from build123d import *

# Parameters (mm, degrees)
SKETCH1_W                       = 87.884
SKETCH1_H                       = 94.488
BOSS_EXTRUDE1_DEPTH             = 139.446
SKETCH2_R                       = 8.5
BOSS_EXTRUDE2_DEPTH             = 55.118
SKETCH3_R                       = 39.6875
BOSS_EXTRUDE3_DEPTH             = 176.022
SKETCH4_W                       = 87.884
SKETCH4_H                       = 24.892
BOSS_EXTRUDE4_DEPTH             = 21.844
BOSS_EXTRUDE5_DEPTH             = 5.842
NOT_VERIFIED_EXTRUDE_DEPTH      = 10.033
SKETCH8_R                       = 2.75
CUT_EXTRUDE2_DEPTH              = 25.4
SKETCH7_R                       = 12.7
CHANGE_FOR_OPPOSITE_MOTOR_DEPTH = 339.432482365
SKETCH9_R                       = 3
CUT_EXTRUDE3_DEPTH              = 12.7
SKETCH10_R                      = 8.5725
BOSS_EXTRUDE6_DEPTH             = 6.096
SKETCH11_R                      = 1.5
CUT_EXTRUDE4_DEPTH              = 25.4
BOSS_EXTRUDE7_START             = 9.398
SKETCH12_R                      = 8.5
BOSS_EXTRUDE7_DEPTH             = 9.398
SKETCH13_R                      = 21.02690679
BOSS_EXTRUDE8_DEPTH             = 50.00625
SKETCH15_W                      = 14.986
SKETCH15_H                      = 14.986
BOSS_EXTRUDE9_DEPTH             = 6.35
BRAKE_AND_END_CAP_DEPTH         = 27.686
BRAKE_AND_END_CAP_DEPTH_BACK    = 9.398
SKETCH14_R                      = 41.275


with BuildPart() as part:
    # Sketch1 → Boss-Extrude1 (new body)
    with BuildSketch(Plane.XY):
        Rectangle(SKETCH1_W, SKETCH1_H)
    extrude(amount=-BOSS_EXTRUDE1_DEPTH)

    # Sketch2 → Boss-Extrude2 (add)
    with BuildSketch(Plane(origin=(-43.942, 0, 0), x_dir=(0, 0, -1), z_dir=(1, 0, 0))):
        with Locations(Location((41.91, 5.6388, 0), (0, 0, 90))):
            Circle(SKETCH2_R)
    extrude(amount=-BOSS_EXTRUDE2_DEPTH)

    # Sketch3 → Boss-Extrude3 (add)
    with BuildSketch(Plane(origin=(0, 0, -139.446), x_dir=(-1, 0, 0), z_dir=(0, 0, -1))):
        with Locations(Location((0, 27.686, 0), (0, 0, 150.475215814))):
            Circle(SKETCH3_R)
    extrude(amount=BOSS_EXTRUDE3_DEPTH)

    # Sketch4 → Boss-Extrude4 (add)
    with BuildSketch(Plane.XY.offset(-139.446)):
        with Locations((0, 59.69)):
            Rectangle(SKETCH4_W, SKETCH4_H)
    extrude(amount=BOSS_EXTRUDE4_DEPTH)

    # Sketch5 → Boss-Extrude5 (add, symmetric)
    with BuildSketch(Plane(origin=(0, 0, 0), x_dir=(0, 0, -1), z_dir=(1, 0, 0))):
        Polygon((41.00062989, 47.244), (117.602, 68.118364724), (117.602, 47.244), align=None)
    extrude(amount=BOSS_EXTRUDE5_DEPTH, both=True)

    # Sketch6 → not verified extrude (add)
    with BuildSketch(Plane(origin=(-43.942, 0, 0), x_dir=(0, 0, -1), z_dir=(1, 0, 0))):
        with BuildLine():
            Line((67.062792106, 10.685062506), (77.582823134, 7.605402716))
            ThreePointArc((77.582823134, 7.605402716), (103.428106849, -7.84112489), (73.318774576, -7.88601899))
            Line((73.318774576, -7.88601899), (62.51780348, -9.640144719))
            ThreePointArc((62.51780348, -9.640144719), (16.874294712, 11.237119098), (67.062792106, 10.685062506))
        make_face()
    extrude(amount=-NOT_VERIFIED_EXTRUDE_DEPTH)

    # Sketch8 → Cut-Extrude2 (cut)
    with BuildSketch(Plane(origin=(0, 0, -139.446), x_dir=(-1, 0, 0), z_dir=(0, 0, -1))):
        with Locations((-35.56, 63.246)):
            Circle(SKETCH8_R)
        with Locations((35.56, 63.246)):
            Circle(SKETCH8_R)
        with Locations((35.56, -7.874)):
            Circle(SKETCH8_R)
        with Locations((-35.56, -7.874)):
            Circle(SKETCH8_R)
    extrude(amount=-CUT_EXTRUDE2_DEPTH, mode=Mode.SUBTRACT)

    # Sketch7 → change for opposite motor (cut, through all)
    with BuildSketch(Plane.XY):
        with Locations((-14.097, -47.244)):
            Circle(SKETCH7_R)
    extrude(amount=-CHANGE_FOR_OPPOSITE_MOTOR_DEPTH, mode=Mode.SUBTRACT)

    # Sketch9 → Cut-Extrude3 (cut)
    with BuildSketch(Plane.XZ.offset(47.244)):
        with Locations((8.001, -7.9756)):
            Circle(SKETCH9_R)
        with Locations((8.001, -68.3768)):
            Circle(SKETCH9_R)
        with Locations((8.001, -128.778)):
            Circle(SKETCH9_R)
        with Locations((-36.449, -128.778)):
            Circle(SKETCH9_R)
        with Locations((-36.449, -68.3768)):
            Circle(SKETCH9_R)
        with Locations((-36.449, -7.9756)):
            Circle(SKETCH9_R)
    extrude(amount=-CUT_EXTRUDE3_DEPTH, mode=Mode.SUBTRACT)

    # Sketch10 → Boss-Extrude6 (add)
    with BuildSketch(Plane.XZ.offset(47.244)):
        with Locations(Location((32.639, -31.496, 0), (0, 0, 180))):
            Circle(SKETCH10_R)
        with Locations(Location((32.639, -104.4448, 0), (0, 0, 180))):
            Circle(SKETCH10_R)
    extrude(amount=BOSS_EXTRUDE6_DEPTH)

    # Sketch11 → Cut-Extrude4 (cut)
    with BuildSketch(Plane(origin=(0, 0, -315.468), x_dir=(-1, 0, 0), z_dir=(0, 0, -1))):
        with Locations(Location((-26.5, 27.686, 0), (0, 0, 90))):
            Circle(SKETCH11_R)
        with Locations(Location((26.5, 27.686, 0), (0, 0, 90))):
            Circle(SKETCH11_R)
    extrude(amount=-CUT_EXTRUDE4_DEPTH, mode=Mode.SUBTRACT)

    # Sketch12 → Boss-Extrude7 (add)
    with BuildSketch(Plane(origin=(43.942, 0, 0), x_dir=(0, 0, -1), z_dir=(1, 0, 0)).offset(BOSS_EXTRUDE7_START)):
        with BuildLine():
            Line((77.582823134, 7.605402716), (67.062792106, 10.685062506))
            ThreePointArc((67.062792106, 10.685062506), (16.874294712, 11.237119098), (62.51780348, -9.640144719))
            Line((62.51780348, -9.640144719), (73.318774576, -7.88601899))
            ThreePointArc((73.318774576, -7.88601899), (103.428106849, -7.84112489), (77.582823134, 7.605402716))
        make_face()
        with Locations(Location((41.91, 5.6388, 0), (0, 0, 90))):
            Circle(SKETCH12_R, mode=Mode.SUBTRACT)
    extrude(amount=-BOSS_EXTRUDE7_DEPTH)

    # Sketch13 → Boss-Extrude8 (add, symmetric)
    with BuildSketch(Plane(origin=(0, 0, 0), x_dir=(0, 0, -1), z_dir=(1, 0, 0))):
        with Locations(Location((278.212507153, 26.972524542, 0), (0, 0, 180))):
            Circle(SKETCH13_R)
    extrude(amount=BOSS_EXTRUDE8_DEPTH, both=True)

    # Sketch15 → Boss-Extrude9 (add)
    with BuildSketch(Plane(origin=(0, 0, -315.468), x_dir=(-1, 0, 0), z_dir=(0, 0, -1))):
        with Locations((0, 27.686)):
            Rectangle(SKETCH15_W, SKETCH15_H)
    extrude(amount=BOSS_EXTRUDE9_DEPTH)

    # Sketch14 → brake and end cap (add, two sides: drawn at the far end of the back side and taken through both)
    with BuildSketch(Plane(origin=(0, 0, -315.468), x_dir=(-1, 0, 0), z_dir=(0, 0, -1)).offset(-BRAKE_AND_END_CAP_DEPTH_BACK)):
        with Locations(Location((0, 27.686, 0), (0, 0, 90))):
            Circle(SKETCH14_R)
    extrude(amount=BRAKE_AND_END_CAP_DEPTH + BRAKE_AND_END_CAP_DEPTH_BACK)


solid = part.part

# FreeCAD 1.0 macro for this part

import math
import FreeCAD as App
import Part
import Sketcher
from FreeCAD import Vector
Q = App.Units.Quantity


def add_polygon(sketch, points):
    """Adds a closed chain of lines whose ends are joined by coincident constraints."""
    first, n = sketch.GeometryCount, len(points)
    for a, b in zip(points, points[1:] + points[:1]):
        sketch.addGeometry(Part.LineSegment(App.Vector(*a, 0), App.Vector(*b, 0)), False)
    for i in range(n):
        sketch.addConstraint(Sketcher.Constraint("Coincident", first + i, 2, first + (i + 1) % n, 1))

doc = App.newDocument("Part")
body = doc.addObject("PartDesign::Body", "Body")

sketch1 = doc.addObject("Sketcher::SketchObject", "Sketch")
body.addObject(sketch1)
sketch1.AttachmentSupport = (doc.XY_Plane, [""])
sketch1.MapMode = "FlatFace"
add_polygon(sketch1, [(-44, 47), (-44, -47), (44, -47), (44, 47)])
sketch1.addConstraint(Sketcher.Constraint("Vertical", 0))
sketch1.addConstraint(Sketcher.Constraint("Horizontal", 1))
sketch1.addConstraint(Sketcher.Constraint("Vertical", 2))
sketch1.addConstraint(Sketcher.Constraint("Horizontal", 3))
sketch1.addConstraint(Sketcher.Constraint("Symmetric", 0, 2, 2, 2, -1, 1))
sketch1.addConstraint(Sketcher.Constraint("DistanceX", 1, 1, 1, 2, Q("3.46 in")))
sketch1.addConstraint(Sketcher.Constraint("DistanceY", 0, 2, 0, 1, Q("3.72 in")))
pad1 = doc.addObject("PartDesign::Pad", "Pad")
body.addObject(pad1)
pad1.Profile = sketch1
pad1.Length = Q("5.49 in")
pad1.Reversed = True

sketch2 = doc.addObject("Sketcher::SketchObject", "Sketch001")
body.addObject(sketch2)
sketch2.AttachmentSupport = (doc.YZ_Plane, [""])
sketch2.MapMode = "FlatFace"
sketch2.AttachmentOffset = App.Placement(Vector(0, 0, -1.73 * 25.4), App.Rotation())
sketch2.addGeometry(Part.Circle(Vector(6, -42, 0), Vector(0, 0, 1), 8), False)
sketch2.addConstraint(Sketcher.Constraint("Diameter", 0, 17.0))
sketch2.addConstraint(Sketcher.Constraint("DistanceY", 0, 3, -1, 1, Q("1.65 in")))
sketch2.addConstraint(Sketcher.Constraint("DistanceX", -1, 1, 0, 3, Q("0.222 in")))
pad2 = doc.addObject("PartDesign::Pad", "Pad001")
body.addObject(pad2)
pad2.Profile = sketch2
pad2.Length = Q("2.17 in")
pad2.Reversed = True

sketch3 = doc.addObject("Sketcher::SketchObject", "Sketch002")
body.addObject(sketch3)
sketch3.AttachmentSupport = (doc.XY_Plane, [""])
sketch3.MapMode = "FlatFace"
sketch3.AttachmentOffset = App.Placement(Vector(0, 0, -5.49 * 25.4), App.Rotation())
sketch3.addGeometry(Part.Circle(Vector(0, 28, 0), Vector(0, 0, 1), 40), False)
sketch3.addConstraint(Sketcher.Constraint("PointOnObject", 0, 3, -2))
sketch3.addConstraint(Sketcher.Constraint("Diameter", 0, Q("3.125 in")))
sketch3.addConstraint(Sketcher.Constraint("DistanceY", -1, 1, 0, 3, Q("1.09 in")))
pad3 = doc.addObject("PartDesign::Pad", "Pad002")
body.addObject(pad3)
pad3.Profile = sketch3
pad3.Length = Q("6.93 in")
pad3.Reversed = True

sketch4 = doc.addObject("Sketcher::SketchObject", "Sketch003")
body.addObject(sketch4)
sketch4.AttachmentSupport = (doc.XY_Plane, [""])
sketch4.MapMode = "FlatFace"
sketch4.AttachmentOffset = App.Placement(Vector(0, 0, -5.49 * 25.4), App.Rotation())
add_polygon(sketch4, [(-44, 72), (-44, 47), (44, 47), (44, 72)])
sketch4.addConstraint(Sketcher.Constraint("Vertical", 0))
sketch4.addConstraint(Sketcher.Constraint("Horizontal", 1))
sketch4.addConstraint(Sketcher.Constraint("Vertical", 2))
sketch4.addConstraint(Sketcher.Constraint("Horizontal", 3))
sketch4.addConstraint(Sketcher.Constraint("DistanceX", 1, 1, 1, 2, Q("3.46 in")))
sketch4.addConstraint(Sketcher.Constraint("DistanceY", 0, 2, 0, 1, Q("0.98 in")))
sketch4.addConstraint(Sketcher.Constraint("DistanceX", 0, 2, -1, 1, Q("1.73 in")))
sketch4.addConstraint(Sketcher.Constraint("DistanceY", -1, 1, 0, 2, Q("1.86 in")))
pad4 = doc.addObject("PartDesign::Pad", "Pad003")
body.addObject(pad4)
pad4.Profile = sketch4
pad4.Length = Q("0.86 in")

sketch5 = doc.addObject("Sketcher::SketchObject", "Sketch004")
body.addObject(sketch5)
sketch5.AttachmentSupport = (doc.YZ_Plane, [""])
sketch5.MapMode = "FlatFace"
add_polygon(sketch5, [(68, -118), (47, -41), (47, -118)])
sketch5.addConstraint(Sketcher.Constraint("Vertical", 1))
sketch5.addConstraint(Sketcher.Constraint("Horizontal", 2))
sketch5.addConstraint(Sketcher.Constraint("DistanceX", -1, 1, 0, 2, Q("1.86 in")))
sketch5.addConstraint(Sketcher.Constraint("DistanceY", 1, 2, -1, 1, Q("4.63 in")))
sketch5.addConstraint(Sketcher.Constraint("DistanceY", 1, 2, 1, 1, 76.60137))
sketch5.addConstraint(Sketcher.Constraint("Distance", 0, 79.394641))
pad5 = doc.addObject("PartDesign::Pad", "Pad004")
body.addObject(pad5)
pad5.Profile = sketch5
pad5.Length = Q("0.46 in")
pad5.Midplane = True

sketch6 = doc.addObject("Sketcher::SketchObject", "Sketch005")
body.addObject(sketch6)
sketch6.AttachmentSupport = (doc.YZ_Plane, [""])
sketch6.MapMode = "FlatFace"
sketch6.AttachmentOffset = App.Placement(Vector(0, 0, -1.73 * 25.4), App.Rotation())
sketch6.addGeometry(Part.LineSegment(Vector(8, -78, 0), Vector(11, -67, 0)), False)
sketch6.addGeometry(Part.ArcOfCircle(Part.Circle(Vector(6, -42, 0), Vector(0, 0, 1), 26), math.radians(-79), math.radians(233)), False)
sketch6.addGeometry(Part.LineSegment(Vector(-10, -63, 0), Vector(-8, -73, 0)), False)
sketch6.addGeometry(Part.ArcOfCircle(Part.Circle(Vector(-4, -88, 0), Vector(0, 0, 1), 16), math.radians(106), math.radians(404)), False)
sketch6.addConstraint(Sketcher.Constraint("Coincident", 0, 2, 1, 1))
sketch6.addConstraint(Sketcher.Constraint("Coincident", 1, 2, 2, 1))
sketch6.addConstraint(Sketcher.Constraint("Coincident", 2, 2, 3, 1))
sketch6.addConstraint(Sketcher.Constraint("Coincident", 3, 2, 0, 1))
sketch6.addConstraint(Sketcher.Constraint("Radius", 1, Q("1.01 in")))
sketch6.addConstraint(Sketcher.Constraint("Radius", 3, Q("0.615 in")))
sketch6.addConstraint(Sketcher.Constraint("DistanceY", 1, 3, -1, 1, Q("1.65 in")))
sketch6.addConstraint(Sketcher.Constraint("DistanceX", -1, 1, 1, 3, Q("0.222 in")))
sketch6.addConstraint(Sketcher.Constraint("Distance", 0, 10.96154))
sketch6.addConstraint(Sketcher.Constraint("DistanceX", 2, 2, -1, 1, 7.886019))
sketch6.addConstraint(Sketcher.Constraint("DistanceY", 0, 2, 1, 2, 4.544989))
sketch6.addConstraint(Sketcher.Constraint("DistanceX", 1, 2, 3, 3, 5.944561))
sketch6.addConstraint(Sketcher.Constraint("DistanceY", 2, 2, 1, 2, 10.800971))
sketch6.addConstraint(Sketcher.Constraint("DistanceY", 3, 3, 2, 2, 15.048452))
pad6 = doc.addObject("PartDesign::Pad", "Pad005")
body.addObject(pad6)
pad6.Profile = sketch6
pad6.Length = Q("0.395 in")
pad6.Reversed = True

sketch7 = doc.addObject("Sketcher::SketchObject", "Sketch006")
body.addObject(sketch7)
sketch7.AttachmentSupport = (doc.XY_Plane, [""])
sketch7.MapMode = "FlatFace"
sketch7.AttachmentOffset = App.Placement(Vector(0, 0, -5.49 * 25.4), App.Rotation())
sketch7.addGeometry(Part.Circle(Vector(35.6, 63.2, 0), Vector(0, 0, 1), 2.8), False)
sketch7.addGeometry(Part.Circle(Vector(-35.6, 63.2, 0), Vector(0, 0, 1), 2.8), False)
sketch7.addGeometry(Part.Circle(Vector(-35.6, -7.9, 0), Vector(0, 0, 1), 2.8), False)
sketch7.addGeometry(Part.Circle(Vector(35.6, -7.9, 0), Vector(0, 0, 1), 2.8), False)
sketch7.addConstraint(Sketcher.Constraint("Equal", 0, 1))
sketch7.addConstraint(Sketcher.Constraint("Equal", 1, 2))
sketch7.addConstraint(Sketcher.Constraint("Equal", 2, 3))
sketch7.addConstraint(Sketcher.Constraint("Symmetric", 0, 3, 1, 3, -2))
sketch7.addConstraint(Sketcher.Constraint("Symmetric", 2, 3, 3, 3, -2))
sketch7.addConstraint(Sketcher.Constraint("Vertical", 1, 3, 2, 3))
sketch7.addConstraint(Sketcher.Constraint("DistanceX", -1, 1, 0, 3, Q("1.4 in")))
sketch7.addConstraint(Sketcher.Constraint("DistanceY", 2, 3, 1, 3, Q("2.8 in")))
sketch7.addConstraint(Sketcher.Constraint("Diameter", 0, 5.5))
sketch7.addConstraint(Sketcher.Constraint("DistanceY", -1, 1, 0, 3, Q("2.49 in")))
pocket1 = doc.addObject("PartDesign::Pocket", "Pocket")
body.addObject(pocket1)
pocket1.Profile = sketch7
pocket1.Length = Q("1 in")
pocket1.Reversed = True

sketch8 = doc.addObject("Sketcher::SketchObject", "Sketch007")
body.addObject(sketch8)
sketch8.AttachmentSupport = (doc.XY_Plane, [""])
sketch8.MapMode = "FlatFace"
sketch8.addGeometry(Part.Circle(Vector(-14, -47, 0), Vector(0, 0, 1), 13), False)
sketch8.addConstraint(Sketcher.Constraint("Diameter", 0, Q("1 in")))
sketch8.addConstraint(Sketcher.Constraint("DistanceY", 0, 3, -1, 1, Q("1.86 in")))
sketch8.addConstraint(Sketcher.Constraint("DistanceX", 0, 3, -1, 1, Q("0.555 in")))
pocket2 = doc.addObject("PartDesign::Pocket", "Pocket001")
body.addObject(pocket2)
pocket2.Profile = sketch8
pocket2.Type = "ThroughAll"

sketch9 = doc.addObject("Sketcher::SketchObject", "Sketch008")
body.addObject(sketch9)
sketch9.AttachmentSupport = (doc.XZ_Plane, [""])
sketch9.MapMode = "FlatFace"
sketch9.AttachmentOffset = App.Placement(Vector(0, 0, 1.86 * 25.4), App.Rotation())
sketch9.addGeometry(Part.Circle(Vector(8, -8, 0), Vector(0, 0, 1), 3), False)
sketch9.addGeometry(Part.Circle(Vector(8, -68.4, 0), Vector(0, 0, 1), 3), False)
sketch9.addGeometry(Part.Circle(Vector(8, -128.8, 0), Vector(0, 0, 1), 3), False)
sketch9.addGeometry(Part.Circle(Vector(-36.4, -128.8, 0), Vector(0, 0, 1), 3), False)
sketch9.addGeometry(Part.Circle(Vector(-36.4, -68.4, 0), Vector(0, 0, 1), 3), False)
sketch9.addGeometry(Part.Circle(Vector(-36.4, -8, 0), Vector(0, 0, 1), 3), False)
sketch9.addConstraint(Sketcher.Constraint("Equal", 0, 1))
sketch9.addConstraint(Sketcher.Constraint("Equal", 1, 2))
sketch9.addConstraint(Sketcher.Constraint("Equal", 2, 3))
sketch9.addConstraint(Sketcher.Constraint("Equal", 3, 4))
sketch9.addConstraint(Sketcher.Constraint("Equal", 4, 5))
sketch9.addConstraint(Sketcher.Constraint("Horizontal", 2, 3, 3, 3))
sketch9.addConstraint(Sketcher.Constraint("Horizontal", 1, 3, 4, 3))
sketch9.addConstraint(Sketcher.Constraint("Horizontal", 0, 3, 5, 3))
sketch9.addConstraint(Sketcher.Constraint("Vertical", 0, 3, 1, 3))
sketch9.addConstraint(Sketcher.Constraint("Vertical", 1, 3, 2, 3))
sketch9.addConstraint(Sketcher.Constraint("Vertical", 3, 3, 4, 3))
sketch9.addConstraint(Sketcher.Constraint("Vertical", 4, 3, 5, 3))
sketch9.addConstraint(Sketcher.Constraint("Diameter", 0, 6.0))
sketch9.addConstraint(Sketcher.Constraint("DistanceY", 2, 3, -1, 1, Q("5.07 in")))
sketch9.addConstraint(Sketcher.Constraint("DistanceX", 3, 3, 2, 3, Q("1.75 in")))
sketch9.addConstraint(Sketcher.Constraint("DistanceX", -1, 1, 0, 3, Q("0.315 in")))
sketch9.addConstraint(Sketcher.Constraint("DistanceY", 0, 3, -1, 1, Q("0.314 in")))
sketch9.addConstraint(Sketcher.Constraint("DistanceY", 1, 3, -1, 1, Q("2.692 in")))
pocket3 = doc.addObject("PartDesign::Pocket", "Pocket002")
body.addObject(pocket3)
pocket3.Profile = sketch9
pocket3.Length = Q("0.5 in")

sketch10 = doc.addObject("Sketcher::SketchObject", "Sketch009")
body.addObject(sketch10)
sketch10.AttachmentSupport = (doc.XZ_Plane, [""])
sketch10.MapMode = "FlatFace"
sketch10.AttachmentOffset = App.Placement(Vector(0, 0, 1.86 * 25.4), App.Rotation())
sketch10.addGeometry(Part.Circle(Vector(33, -31, 0), Vector(0, 0, 1), 9), False)
sketch10.addGeometry(Part.Circle(Vector(33, -104, 0), Vector(0, 0, 1), 9), False)
sketch10.addConstraint(Sketcher.Constraint("Equal", 0, 1))
sketch10.addConstraint(Sketcher.Constraint("Vertical", 0, 3, 1, 3))
sketch10.addConstraint(Sketcher.Constraint("Diameter", 0, Q("0.675 in")))
sketch10.addConstraint(Sketcher.Constraint("DistanceY", 0, 3, -1, 1, Q("1.24 in")))
sketch10.addConstraint(Sketcher.Constraint("DistanceX", -1, 1, 0, 3, Q("1.285 in")))
sketch10.addConstraint(Sketcher.Constraint("DistanceY", 1, 3, -1, 1, Q("4.112 in")))
pad7 = doc.addObject("PartDesign::Pad", "Pad006")
body.addObject(pad7)
pad7.Profile = sketch10
pad7.Length = Q("0.24 in")

sketch11 = doc.addObject("Sketcher::SketchObject", "Sketch010")
body.addObject(sketch11)
sketch11.AttachmentSupport = (doc.XY_Plane, [""])
sketch11.MapMode = "FlatFace"
sketch11.AttachmentOffset = App.Placement(Vector(0, 0, -12.42 * 25.4), App.Rotation())
sketch11.addGeometry(Part.Circle(Vector(26.5, 27.7, 0), Vector(0, 0, 1), 1.5), False)
sketch11.addGeometry(Part.Circle(Vector(-26.5, 27.7, 0), Vector(0, 0, 1), 1.5), False)
sketch11.addConstraint(Sketcher.Constraint("Equal", 0, 1))
sketch11.addConstraint(Sketcher.Constraint("Symmetric", 0, 3, 1, 3, -2))
sketch11.addConstraint(Sketcher.Constraint("Diameter", 0, 3.0))
sketch11.addConstraint(Sketcher.Constraint("DistanceY", -1, 1, 0, 3, Q("1.09 in")))
sketch11.addConstraint(Sketcher.Constraint("DistanceX", -1, 1, 0, 3, 26.5))
pocket4 = doc.addObject("PartDesign::Pocket", "Pocket003")
body.addObject(pocket4)
pocket4.Profile = sketch11
pocket4.Length = Q("1 in")
pocket4.Reversed = True

sketch12 = doc.addObject("Sketcher::SketchObject", "Sketch011")
body.addObject(sketch12)
sketch12.AttachmentSupport = (doc.YZ_Plane, [""])
sketch12.MapMode = "FlatFace"
sketch12.AttachmentOffset = App.Placement(Vector(0, 0, 2.1 * 25.4), App.Rotation())
sketch12.addGeometry(Part.LineSegment(Vector(8, -78, 0), Vector(11, -67, 0)), False)
sketch12.addGeometry(Part.ArcOfCircle(Part.Circle(Vector(6, -42, 0), Vector(0, 0, 1), 26), math.radians(-79), math.radians(233)), False)
sketch12.addGeometry(Part.LineSegment(Vector(-10, -63, 0), Vector(-8, -73, 0)), False)
sketch12.addGeometry(Part.ArcOfCircle(Part.Circle(Vector(-4, -88, 0), Vector(0, 0, 1), 16), math.radians(106), math.radians(404)), False)
sketch12.addGeometry(Part.Circle(Vector(6, -42, 0), Vector(0, 0, 1), 8), False)
sketch12.addConstraint(Sketcher.Constraint("Coincident", 0, 2, 1, 1))
sketch12.addConstraint(Sketcher.Constraint("Coincident", 1, 2, 2, 1))
sketch12.addConstraint(Sketcher.Constraint("Coincident", 2, 2, 3, 1))
sketch12.addConstraint(Sketcher.Constraint("Coincident", 3, 2, 0, 1))
sketch12.addConstraint(Sketcher.Constraint("Coincident", 4, 3, 1, 3))
sketch12.addConstraint(Sketcher.Constraint("Radius", 1, Q("1.01 in")))
sketch12.addConstraint(Sketcher.Constraint("Radius", 3, Q("0.615 in")))
sketch12.addConstraint(Sketcher.Constraint("Diameter", 4, 17.0))
sketch12.addConstraint(Sketcher.Constraint("DistanceY", 1, 3, -1, 1, Q("1.65 in")))
sketch12.addConstraint(Sketcher.Constraint("DistanceX", -1, 1, 1, 3, Q("0.222 in")))
sketch12.addConstraint(Sketcher.Constraint("Distance", 0, 10.96154))
sketch12.addConstraint(Sketcher.Constraint("DistanceX", 2, 2, -1, 1, 7.886019))
sketch12.addConstraint(Sketcher.Constraint("DistanceY", 0, 2, 1, 2, 4.544989))
sketch12.addConstraint(Sketcher.Constraint("DistanceX", 1, 2, 3, 3, 5.944561))
sketch12.addConstraint(Sketcher.Constraint("DistanceY", 2, 2, 1, 2, 10.800971))
sketch12.addConstraint(Sketcher.Constraint("DistanceY", 3, 3, 2, 2, 15.048452))
pad8 = doc.addObject("PartDesign::Pad", "Pad007")
body.addObject(pad8)
pad8.Profile = sketch12
pad8.Length = Q("0.37 in")
pad8.Reversed = True

sketch13 = doc.addObject("Sketcher::SketchObject", "Sketch012")
body.addObject(sketch13)
sketch13.AttachmentSupport = (doc.YZ_Plane, [""])
sketch13.MapMode = "FlatFace"
sketch13.addGeometry(Part.Circle(Vector(27, -278, 0), Vector(0, 0, 1), 21), False)
sketch13.addConstraint(Sketcher.Constraint("Diameter", 0, 42.053814))
sketch13.addConstraint(Sketcher.Constraint("DistanceX", -1, 1, 0, 3, 26.972525))
sketch13.addConstraint(Sketcher.Constraint("DistanceY", 0, 3, -1, 1, 278.212507))
pad9 = doc.addObject("PartDesign::Pad", "Pad008")
body.addObject(pad9)
pad9.Profile = sketch13
pad9.Length = Q("3.9375 in")
pad9.Midplane = True

sketch14 = doc.addObject("Sketcher::SketchObject", "Sketch013")
body.addObject(sketch14)
sketch14.AttachmentSupport = (doc.XY_Plane, [""])
sketch14.MapMode = "FlatFace"
sketch14.AttachmentOffset = App.Placement(Vector(0, 0, -12.42 * 25.4), App.Rotation())
add_polygon(sketch14, [(7, 35), (7, 20), (-7, 20), (-7, 35)])
sketch14.addConstraint(Sketcher.Constraint("Vertical", 0))
sketch14.addConstraint(Sketcher.Constraint("Horizontal", 1))
sketch14.addConstraint(Sketcher.Constraint("Vertical", 2))
sketch14.addConstraint(Sketcher.Constraint("Horizontal", 3))
sketch14.addConstraint(Sketcher.Constraint("Equal", 3, 0))
sketch14.addConstraint(Sketcher.Constraint("DistanceX", 1, 2, 1, 1, Q("0.59 in")))
sketch14.addConstraint(Sketcher.Constraint("DistanceX", -1, 1, 0, 2, Q("0.295 in")))
sketch14.addConstraint(Sketcher.Constraint("DistanceY", -1, 1, 0, 2, Q("0.795 in")))
pad10 = doc.addObject("PartDesign::Pad", "Pad009")
body.addObject(pad10)
pad10.Profile = sketch14
pad10.Length = Q("0.25 in")
pad10.Reversed = True

sketch15 = doc.addObject("Sketcher::SketchObject", "Sketch014")
body.addObject(sketch15)
sketch15.AttachmentSupport = (doc.XY_Plane, [""])
sketch15.MapMode = "FlatFace"
sketch15.AttachmentOffset = App.Placement(Vector(0, 0, -12.42 * 25.4), App.Rotation())
sketch15.addGeometry(Part.Circle(Vector(0, 28, 0), Vector(0, 0, 1), 41), False)
sketch15.addConstraint(Sketcher.Constraint("PointOnObject", 0, 3, -2))
sketch15.addConstraint(Sketcher.Constraint("Diameter", 0, Q("3.25 in")))
sketch15.addConstraint(Sketcher.Constraint("DistanceY", -1, 1, 0, 3, Q("1.09 in")))
pad11 = doc.addObject("PartDesign::Pad", "Pad010")
body.addObject(pad11)
pad11.Profile = sketch15
pad11.Type = "TwoLengths"
pad11.Length = Q("1.09 in")
pad11.Length2 = Q("0.37 in")
pad11.Reversed = True

doc.recompute()
